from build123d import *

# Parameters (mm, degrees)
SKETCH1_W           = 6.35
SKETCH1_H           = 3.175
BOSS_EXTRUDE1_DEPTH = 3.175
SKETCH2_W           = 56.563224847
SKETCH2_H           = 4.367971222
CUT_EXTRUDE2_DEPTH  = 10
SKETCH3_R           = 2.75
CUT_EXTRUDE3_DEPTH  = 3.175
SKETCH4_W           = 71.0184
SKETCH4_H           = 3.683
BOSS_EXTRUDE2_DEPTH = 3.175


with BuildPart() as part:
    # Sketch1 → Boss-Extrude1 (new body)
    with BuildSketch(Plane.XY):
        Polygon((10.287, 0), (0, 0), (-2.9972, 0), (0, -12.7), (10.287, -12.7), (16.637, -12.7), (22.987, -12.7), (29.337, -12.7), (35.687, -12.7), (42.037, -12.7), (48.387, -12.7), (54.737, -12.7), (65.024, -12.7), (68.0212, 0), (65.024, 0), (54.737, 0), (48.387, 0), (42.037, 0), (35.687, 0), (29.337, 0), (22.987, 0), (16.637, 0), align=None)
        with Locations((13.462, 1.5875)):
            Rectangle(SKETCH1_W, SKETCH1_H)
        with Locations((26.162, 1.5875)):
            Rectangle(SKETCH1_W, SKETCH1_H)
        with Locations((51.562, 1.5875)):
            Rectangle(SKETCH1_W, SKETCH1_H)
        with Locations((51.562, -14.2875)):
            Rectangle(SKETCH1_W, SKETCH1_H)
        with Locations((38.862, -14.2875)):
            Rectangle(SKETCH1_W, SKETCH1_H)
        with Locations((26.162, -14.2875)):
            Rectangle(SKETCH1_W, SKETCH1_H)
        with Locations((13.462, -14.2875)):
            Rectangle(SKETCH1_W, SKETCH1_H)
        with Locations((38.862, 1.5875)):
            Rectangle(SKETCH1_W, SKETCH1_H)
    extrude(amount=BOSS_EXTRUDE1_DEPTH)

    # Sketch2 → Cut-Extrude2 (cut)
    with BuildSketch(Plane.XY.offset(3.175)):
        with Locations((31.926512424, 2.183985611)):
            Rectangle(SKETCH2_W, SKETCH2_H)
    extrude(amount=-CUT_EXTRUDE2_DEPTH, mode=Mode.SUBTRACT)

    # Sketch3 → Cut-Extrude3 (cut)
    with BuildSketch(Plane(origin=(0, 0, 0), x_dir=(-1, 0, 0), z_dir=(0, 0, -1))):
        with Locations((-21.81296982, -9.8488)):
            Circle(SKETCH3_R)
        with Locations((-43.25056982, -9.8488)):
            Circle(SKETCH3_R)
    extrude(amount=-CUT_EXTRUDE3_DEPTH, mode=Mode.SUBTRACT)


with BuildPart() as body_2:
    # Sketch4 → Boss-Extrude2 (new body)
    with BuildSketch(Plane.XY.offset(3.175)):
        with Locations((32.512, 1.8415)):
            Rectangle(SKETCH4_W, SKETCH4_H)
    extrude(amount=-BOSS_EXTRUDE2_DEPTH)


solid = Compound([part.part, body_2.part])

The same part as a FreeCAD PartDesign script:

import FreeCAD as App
import Part
import Sketcher

V = App.Vector
Q = App.Units.Quantity

doc = App.newDocument("Part")
body = doc.addObject("PartDesign::Body", "Body")

# Sketch on XY plane
sketch1 = body.newObject("Sketcher::SketchObject", "Sketch")
sketch1.AttachmentSupport = (doc.getObject("XY_Plane"), [""])
sketch1.MapMode = "FlatFace"
sketch1.addGeometry([
    Part.LineSegment(V(-3, 0, 0), V(0, -12.7, 0)),  # 0
    Part.LineSegment(V(0, -12.7, 0), V(10.3, -12.7, 0)),  # 1
    Part.LineSegment(V(10.3, -12.7, 0), V(10.3, -15.9, 0)),  # 2
    Part.LineSegment(V(10.3, -15.9, 0), V(16.6, -15.9, 0)),  # 3
    Part.LineSegment(V(16.6, -15.9, 0), V(16.6, -12.7, 0)),  # 4
    Part.LineSegment(V(16.6, -12.7, 0), V(23, -12.7, 0)),  # 5
    Part.LineSegment(V(23, -12.7, 0), V(23, -15.9, 0)),  # 6
    Part.LineSegment(V(23, -15.9, 0), V(29.3, -15.9, 0)),  # 7
    Part.LineSegment(V(29.3, -15.9, 0), V(29.3, -12.7, 0)),  # 8
    Part.LineSegment(V(29.3, -12.7, 0), V(35.7, -12.7, 0)),  # 9
    Part.LineSegment(V(35.7, -12.7, 0), V(35.7, -15.9, 0)),  # 10
    Part.LineSegment(V(35.7, -15.9, 0), V(42, -15.9, 0)),  # 11
    Part.LineSegment(V(42, -15.9, 0), V(42, -12.7, 0)),  # 12
    Part.LineSegment(V(42, -12.7, 0), V(48.4, -12.7, 0)),  # 13
    Part.LineSegment(V(48.4, -12.7, 0), V(48.4, -15.9, 0)),  # 14
    Part.LineSegment(V(48.4, -15.9, 0), V(54.7, -15.9, 0)),  # 15
    Part.LineSegment(V(54.7, -15.9, 0), V(54.7, -12.7, 0)),  # 16
    Part.LineSegment(V(54.7, -12.7, 0), V(65, -12.7, 0)),  # 17
    Part.LineSegment(V(65, -12.7, 0), V(68, 0, 0)),  # 18
    Part.LineSegment(V(68, 0, 0), V(54.7, 0, 0)),  # 19
    Part.LineSegment(V(54.7, 0, 0), V(54.7, 3.2, 0)),  # 20
    Part.LineSegment(V(54.7, 3.2, 0), V(48.4, 3.2, 0)),  # 21
    Part.LineSegment(V(48.4, 3.2, 0), V(48.4, 0, 0)),  # 22
    Part.LineSegment(V(48.4, 0, 0), V(42, 0, 0)),  # 23
    Part.LineSegment(V(42, 0, 0), V(42, 3.2, 0)),  # 24
    Part.LineSegment(V(42, 3.2, 0), V(35.7, 3.2, 0)),  # 25
    Part.LineSegment(V(35.7, 3.2, 0), V(35.7, 0, 0)),  # 26
    Part.LineSegment(V(35.7, 0, 0), V(29.3, 0, 0)),  # 27
    Part.LineSegment(V(29.3, 0, 0), V(29.3, 3.2, 0)),  # 28
    Part.LineSegment(V(29.3, 3.2, 0), V(23, 3.2, 0)),  # 29
    Part.LineSegment(V(23, 3.2, 0), V(23, 0, 0)),  # 30
    Part.LineSegment(V(23, 0, 0), V(16.6, 0, 0)),  # 31
    Part.LineSegment(V(16.6, 0, 0), V(16.6, 3.2, 0)),  # 32
    Part.LineSegment(V(16.6, 3.2, 0), V(10.3, 3.2, 0)),  # 33
    Part.LineSegment(V(10.3, 3.2, 0), V(10.3, 0, 0)),  # 34
    Part.LineSegment(V(10.3, 0, 0), V(-3, 0, 0)),  # 35
], False)
sketch1.addConstraint([
    Sketcher.Constraint("Coincident", 0, 2, 1, 1),
    Sketcher.Constraint("Coincident", 1, 2, 2, 1),
    Sketcher.Constraint("Coincident", 2, 2, 3, 1),
    Sketcher.Constraint("Coincident", 3, 2, 4, 1),
    Sketcher.Constraint("Coincident", 4, 2, 5, 1),
    Sketcher.Constraint("Coincident", 5, 2, 6, 1),
    Sketcher.Constraint("Coincident", 6, 2, 7, 1),
    Sketcher.Constraint("Coincident", 7, 2, 8, 1),
    Sketcher.Constraint("Coincident", 8, 2, 9, 1),
    Sketcher.Constraint("Coincident", 9, 2, 10, 1),
    Sketcher.Constraint("Coincident", 10, 2, 11, 1),
    Sketcher.Constraint("Coincident", 11, 2, 12, 1),
    Sketcher.Constraint("Coincident", 12, 2, 13, 1),
    Sketcher.Constraint("Coincident", 13, 2, 14, 1),
    Sketcher.Constraint("Coincident", 14, 2, 15, 1),
    Sketcher.Constraint("Coincident", 15, 2, 16, 1),
    Sketcher.Constraint("Coincident", 16, 2, 17, 1),
    Sketcher.Constraint("Coincident", 17, 2, 18, 1),
    Sketcher.Constraint("Coincident", 18, 2, 19, 1),
    Sketcher.Constraint("Coincident", 19, 2, 20, 1),
    Sketcher.Constraint("Coincident", 20, 2, 21, 1),
    Sketcher.Constraint("Coincident", 21, 2, 22, 1),
    Sketcher.Constraint("Coincident", 22, 2, 23, 1),
    Sketcher.Constraint("Coincident", 23, 2, 24, 1),
    Sketcher.Constraint("Coincident", 24, 2, 25, 1),
    Sketcher.Constraint("Coincident", 25, 2, 26, 1),
    Sketcher.Constraint("Coincident", 26, 2, 27, 1),
    Sketcher.Constraint("Coincident", 27, 2, 28, 1),
    Sketcher.Constraint("Coincident", 28, 2, 29, 1),
    Sketcher.Constraint("Coincident", 29, 2, 30, 1),
    Sketcher.Constraint("Coincident", 30, 2, 31, 1),
    Sketcher.Constraint("Coincident", 31, 2, 32, 1),
    Sketcher.Constraint("Coincident", 32, 2, 33, 1),
    Sketcher.Constraint("Coincident", 33, 2, 34, 1),
    Sketcher.Constraint("Coincident", 34, 2, 35, 1),
    Sketcher.Constraint("Coincident", 35, 2, 0, 1),
    Sketcher.Constraint("Horizontal", 1),
    Sketcher.Constraint("Vertical", 2),
    Sketcher.Constraint("Horizontal", 3),
    Sketcher.Constraint("Vertical", 4),
    Sketcher.Constraint("Horizontal", 5),
    Sketcher.Constraint("Vertical", 6),
    Sketcher.Constraint("Horizontal", 7),
    Sketcher.Constraint("Vertical", 8),
    Sketcher.Constraint("Horizontal", 9),
    Sketcher.Constraint("Vertical", 10),
    Sketcher.Constraint("Horizontal", 11),
    Sketcher.Constraint("Vertical", 12),
    Sketcher.Constraint("Horizontal", 13),
    Sketcher.Constraint("Vertical", 14),
    Sketcher.Constraint("Horizontal", 15),
    Sketcher.Constraint("Vertical", 16),
    Sketcher.Constraint("Horizontal", 17),
    Sketcher.Constraint("Horizontal", 19),
    Sketcher.Constraint("Vertical", 20),
    Sketcher.Constraint("Horizontal", 21),
    Sketcher.Constraint("Vertical", 22),
    Sketcher.Constraint("Horizontal", 23),
    Sketcher.Constraint("Vertical", 24),
    Sketcher.Constraint("Horizontal", 25),
    Sketcher.Constraint("Vertical", 26),
    Sketcher.Constraint("Horizontal", 27),
    Sketcher.Constraint("Vertical", 28),
    Sketcher.Constraint("Horizontal", 29),
    Sketcher.Constraint("Vertical", 30),
    Sketcher.Constraint("Horizontal", 31),
    Sketcher.Constraint("Vertical", 32),
    Sketcher.Constraint("Horizontal", 33),
    Sketcher.Constraint("Vertical", 34),
    Sketcher.Constraint("Horizontal", 35),
    Sketcher.Constraint("PointOnObject", 0, 2, -2),
    Sketcher.Constraint("PointOnObject", 18, 2, -1),
    Sketcher.Constraint("PointOnObject", 22, 2, -1),
    Sketcher.Constraint("PointOnObject", 26, 2, -1),
    Sketcher.Constraint("PointOnObject", 30, 2, -1),
    Sketcher.Constraint("PointOnObject", 34, 2, -1),
    Sketcher.Constraint("Horizontal", 1, 2, 4, 2),
    Sketcher.Constraint("Horizontal", 3, 2, 6, 2),
    Sketcher.Constraint("Horizontal", 5, 2, 8, 2),
    Sketcher.Constraint("Horizontal", 7, 2, 10, 2),
    Sketcher.Constraint("Horizontal", 9, 2, 12, 2),
    Sketcher.Constraint("Horizontal", 11, 2, 14, 2),
    Sketcher.Constraint("Horizontal", 13, 2, 16, 2),
    Sketcher.Constraint("Horizontal", 21, 2, 24, 2),
    Sketcher.Constraint("Horizontal", 25, 2, 28, 2),
    Sketcher.Constraint("Horizontal", 29, 2, 32, 2),
    Sketcher.Constraint("Vertical", 16, 2, 19, 2),
    Sketcher.Constraint("Vertical", 14, 2, 21, 2),
    Sketcher.Constraint("Vertical", 12, 2, 23, 2),
    Sketcher.Constraint("Vertical", 10, 2, 25, 2),
    Sketcher.Constraint("Vertical", 8, 2, 27, 2),
    Sketcher.Constraint("Vertical", 6, 2, 29, 2),
    Sketcher.Constraint("Vertical", 4, 2, 31, 2),
    Sketcher.Constraint("Vertical", 2, 2, 33, 2),
    Sketcher.Constraint("Equal", 3, 5),
    Sketcher.Constraint("Equal", 5, 7),
    Sketcher.Constraint("Equal", 7, 9),
    Sketcher.Constraint("Equal", 9, 11),
    Sketcher.Constraint("Equal", 11, 13),
    Sketcher.Constraint("Equal", 13, 15),
    Sketcher.Constraint("Equal", 1, 17),
    Sketcher.Constraint("Equal", 19, 35),
    Sketcher.Constraint("Equal", 16, 20),
    Sketcher.Constraint("DistanceX", 3, 1, 3, 2, Q("0.25 in")),
    Sketcher.Constraint("DistanceY", 0, 2, -1, 1, Q("0.5 in")),
    Sketcher.Constraint("DistanceX", 1, 1, 1, 2, Q("0.405 in")),
    Sketcher.Constraint("DistanceX", 19, 2, 19, 1, Q("0.523 in")),
    Sketcher.Constraint("DistanceY", 2, 2, 2, 1, Q("0.125 in")),
])
pad1 = body.newObject("PartDesign::Pad", "Pad")
pad1.Profile = sketch1
pad1.Length = Q("0.125 in")

# Sketch on XY plane
sketch2 = body.newObject("Sketcher::SketchObject", "Sketch001")
sketch2.AttachmentSupport = (doc.getObject("XY_Plane"), [""])
sketch2.MapMode = "FlatFace"
sketch2.AttachmentOffset = App.Placement(V(0, 0, 0.125 * 25.4), App.Rotation())
sketch2.addGeometry([
    Part.LineSegment(V(3.6, 4.4, 0), V(3.6, 0, 0)),
    Part.LineSegment(V(3.6, 0, 0), V(60.2, 0, 0)),
    Part.LineSegment(V(60.2, 0, 0), V(60.2, 4.4, 0)),
    Part.LineSegment(V(60.2, 4.4, 0), V(3.6, 4.4, 0)),
], False)
sketch2.addConstraint([
    Sketcher.Constraint("Coincident", 0, 2, 1, 1),
    Sketcher.Constraint("Coincident", 1, 2, 2, 1),
    Sketcher.Constraint("Coincident", 2, 2, 3, 1),
    Sketcher.Constraint("Coincident", 3, 2, 0, 1),
    Sketcher.Constraint("Vertical", 0),
    Sketcher.Constraint("Horizontal", 1),
    Sketcher.Constraint("Vertical", 2),
    Sketcher.Constraint("Horizontal", 3),
    Sketcher.Constraint("PointOnObject", 0, 2, -1),
    Sketcher.Constraint("DistanceX", -1, 1, 0, 2, Q("0.1435 in")),
    Sketcher.Constraint("DistanceY", 0, 2, 0, 1, 4.367971),
    Sketcher.Constraint("DistanceX", 1, 1, 1, 2, 56.563225),
])
pocket1 = body.newObject("PartDesign::Pocket", "Pocket")
pocket1.Profile = sketch2
pocket1.Length = 10

# Sketch on XY plane
sketch3 = body.newObject("Sketcher::SketchObject", "Sketch002")
sketch3.AttachmentSupport = (doc.getObject("XY_Plane"), [""])
sketch3.MapMode = "FlatFace"
sketch3.addGeometry([
    Part.Circle(V(21.8, -9.8, 0), V(0, 0, 1), 2.8),
    Part.Circle(V(43.3, -9.8, 0), V(0, 0, 1), 2.8),
], False)
sketch3.addConstraint([
    Sketcher.Constraint("Equal", 0, 1),
    Sketcher.Constraint("Horizontal", 0, 3, 1, 3),
    Sketcher.Constraint("Diameter", 0, 5.5),
    Sketcher.Constraint("DistanceX", 0, 3, 1, 3, Q("0.844 in")),
    Sketcher.Constraint("DistanceY", 0, 3, -1, 1, 9.8488),
    Sketcher.Constraint("DistanceX", -1, 1, 0, 3, 21.81297),
])
pocket2 = body.newObject("PartDesign::Pocket", "Pocket001")
pocket2.Profile = sketch3
pocket2.Length = Q("0.125 in")
pocket2.Reversed = True
body2 = doc.addObject("PartDesign::Body", "Body001")

# Sketch on XY plane
sketch4 = body2.newObject("Sketcher::SketchObject", "Sketch003")
sketch4.AttachmentSupport = (doc.getObject("XY_Plane001"), [""])
sketch4.MapMode = "FlatFace"
sketch4.AttachmentOffset = App.Placement(V(0, 0, 0.125 * 25.4), App.Rotation())
sketch4.addGeometry([
    Part.LineSegment(V(-3, 3.7, 0), V(-3, 0, 0)),
    Part.LineSegment(V(-3, 0, 0), V(68, 0, 0)),
    Part.LineSegment(V(68, 0, 0), V(68, 3.7, 0)),
    Part.LineSegment(V(68, 3.7, 0), V(-3, 3.7, 0)),
], False)
sketch4.addConstraint([
    Sketcher.Constraint("Coincident", 0, 2, 1, 1),
    Sketcher.Constraint("Coincident", 1, 2, 2, 1),
    Sketcher.Constraint("Coincident", 2, 2, 3, 1),
    Sketcher.Constraint("Coincident", 3, 2, 0, 1),
    Sketcher.Constraint("Vertical", 0),
    Sketcher.Constraint("Horizontal", 1),
    Sketcher.Constraint("Vertical", 2),
    Sketcher.Constraint("Horizontal", 3),
    Sketcher.Constraint("PointOnObject", 0, 2, -1),
    Sketcher.Constraint("DistanceX", 1, 1, 1, 2, Q("2.796 in")),
    Sketcher.Constraint("DistanceY", 0, 2, 0, 1, Q("0.145 in")),
    Sketcher.Constraint("DistanceX", 0, 2, -1, 1, Q("0.118 in")),
])
pad2 = body2.newObject("PartDesign::Pad", "Pad001")
pad2.Profile = sketch4
pad2.Length = Q("0.125 in")
pad2.Reversed = True

doc.recompute()
